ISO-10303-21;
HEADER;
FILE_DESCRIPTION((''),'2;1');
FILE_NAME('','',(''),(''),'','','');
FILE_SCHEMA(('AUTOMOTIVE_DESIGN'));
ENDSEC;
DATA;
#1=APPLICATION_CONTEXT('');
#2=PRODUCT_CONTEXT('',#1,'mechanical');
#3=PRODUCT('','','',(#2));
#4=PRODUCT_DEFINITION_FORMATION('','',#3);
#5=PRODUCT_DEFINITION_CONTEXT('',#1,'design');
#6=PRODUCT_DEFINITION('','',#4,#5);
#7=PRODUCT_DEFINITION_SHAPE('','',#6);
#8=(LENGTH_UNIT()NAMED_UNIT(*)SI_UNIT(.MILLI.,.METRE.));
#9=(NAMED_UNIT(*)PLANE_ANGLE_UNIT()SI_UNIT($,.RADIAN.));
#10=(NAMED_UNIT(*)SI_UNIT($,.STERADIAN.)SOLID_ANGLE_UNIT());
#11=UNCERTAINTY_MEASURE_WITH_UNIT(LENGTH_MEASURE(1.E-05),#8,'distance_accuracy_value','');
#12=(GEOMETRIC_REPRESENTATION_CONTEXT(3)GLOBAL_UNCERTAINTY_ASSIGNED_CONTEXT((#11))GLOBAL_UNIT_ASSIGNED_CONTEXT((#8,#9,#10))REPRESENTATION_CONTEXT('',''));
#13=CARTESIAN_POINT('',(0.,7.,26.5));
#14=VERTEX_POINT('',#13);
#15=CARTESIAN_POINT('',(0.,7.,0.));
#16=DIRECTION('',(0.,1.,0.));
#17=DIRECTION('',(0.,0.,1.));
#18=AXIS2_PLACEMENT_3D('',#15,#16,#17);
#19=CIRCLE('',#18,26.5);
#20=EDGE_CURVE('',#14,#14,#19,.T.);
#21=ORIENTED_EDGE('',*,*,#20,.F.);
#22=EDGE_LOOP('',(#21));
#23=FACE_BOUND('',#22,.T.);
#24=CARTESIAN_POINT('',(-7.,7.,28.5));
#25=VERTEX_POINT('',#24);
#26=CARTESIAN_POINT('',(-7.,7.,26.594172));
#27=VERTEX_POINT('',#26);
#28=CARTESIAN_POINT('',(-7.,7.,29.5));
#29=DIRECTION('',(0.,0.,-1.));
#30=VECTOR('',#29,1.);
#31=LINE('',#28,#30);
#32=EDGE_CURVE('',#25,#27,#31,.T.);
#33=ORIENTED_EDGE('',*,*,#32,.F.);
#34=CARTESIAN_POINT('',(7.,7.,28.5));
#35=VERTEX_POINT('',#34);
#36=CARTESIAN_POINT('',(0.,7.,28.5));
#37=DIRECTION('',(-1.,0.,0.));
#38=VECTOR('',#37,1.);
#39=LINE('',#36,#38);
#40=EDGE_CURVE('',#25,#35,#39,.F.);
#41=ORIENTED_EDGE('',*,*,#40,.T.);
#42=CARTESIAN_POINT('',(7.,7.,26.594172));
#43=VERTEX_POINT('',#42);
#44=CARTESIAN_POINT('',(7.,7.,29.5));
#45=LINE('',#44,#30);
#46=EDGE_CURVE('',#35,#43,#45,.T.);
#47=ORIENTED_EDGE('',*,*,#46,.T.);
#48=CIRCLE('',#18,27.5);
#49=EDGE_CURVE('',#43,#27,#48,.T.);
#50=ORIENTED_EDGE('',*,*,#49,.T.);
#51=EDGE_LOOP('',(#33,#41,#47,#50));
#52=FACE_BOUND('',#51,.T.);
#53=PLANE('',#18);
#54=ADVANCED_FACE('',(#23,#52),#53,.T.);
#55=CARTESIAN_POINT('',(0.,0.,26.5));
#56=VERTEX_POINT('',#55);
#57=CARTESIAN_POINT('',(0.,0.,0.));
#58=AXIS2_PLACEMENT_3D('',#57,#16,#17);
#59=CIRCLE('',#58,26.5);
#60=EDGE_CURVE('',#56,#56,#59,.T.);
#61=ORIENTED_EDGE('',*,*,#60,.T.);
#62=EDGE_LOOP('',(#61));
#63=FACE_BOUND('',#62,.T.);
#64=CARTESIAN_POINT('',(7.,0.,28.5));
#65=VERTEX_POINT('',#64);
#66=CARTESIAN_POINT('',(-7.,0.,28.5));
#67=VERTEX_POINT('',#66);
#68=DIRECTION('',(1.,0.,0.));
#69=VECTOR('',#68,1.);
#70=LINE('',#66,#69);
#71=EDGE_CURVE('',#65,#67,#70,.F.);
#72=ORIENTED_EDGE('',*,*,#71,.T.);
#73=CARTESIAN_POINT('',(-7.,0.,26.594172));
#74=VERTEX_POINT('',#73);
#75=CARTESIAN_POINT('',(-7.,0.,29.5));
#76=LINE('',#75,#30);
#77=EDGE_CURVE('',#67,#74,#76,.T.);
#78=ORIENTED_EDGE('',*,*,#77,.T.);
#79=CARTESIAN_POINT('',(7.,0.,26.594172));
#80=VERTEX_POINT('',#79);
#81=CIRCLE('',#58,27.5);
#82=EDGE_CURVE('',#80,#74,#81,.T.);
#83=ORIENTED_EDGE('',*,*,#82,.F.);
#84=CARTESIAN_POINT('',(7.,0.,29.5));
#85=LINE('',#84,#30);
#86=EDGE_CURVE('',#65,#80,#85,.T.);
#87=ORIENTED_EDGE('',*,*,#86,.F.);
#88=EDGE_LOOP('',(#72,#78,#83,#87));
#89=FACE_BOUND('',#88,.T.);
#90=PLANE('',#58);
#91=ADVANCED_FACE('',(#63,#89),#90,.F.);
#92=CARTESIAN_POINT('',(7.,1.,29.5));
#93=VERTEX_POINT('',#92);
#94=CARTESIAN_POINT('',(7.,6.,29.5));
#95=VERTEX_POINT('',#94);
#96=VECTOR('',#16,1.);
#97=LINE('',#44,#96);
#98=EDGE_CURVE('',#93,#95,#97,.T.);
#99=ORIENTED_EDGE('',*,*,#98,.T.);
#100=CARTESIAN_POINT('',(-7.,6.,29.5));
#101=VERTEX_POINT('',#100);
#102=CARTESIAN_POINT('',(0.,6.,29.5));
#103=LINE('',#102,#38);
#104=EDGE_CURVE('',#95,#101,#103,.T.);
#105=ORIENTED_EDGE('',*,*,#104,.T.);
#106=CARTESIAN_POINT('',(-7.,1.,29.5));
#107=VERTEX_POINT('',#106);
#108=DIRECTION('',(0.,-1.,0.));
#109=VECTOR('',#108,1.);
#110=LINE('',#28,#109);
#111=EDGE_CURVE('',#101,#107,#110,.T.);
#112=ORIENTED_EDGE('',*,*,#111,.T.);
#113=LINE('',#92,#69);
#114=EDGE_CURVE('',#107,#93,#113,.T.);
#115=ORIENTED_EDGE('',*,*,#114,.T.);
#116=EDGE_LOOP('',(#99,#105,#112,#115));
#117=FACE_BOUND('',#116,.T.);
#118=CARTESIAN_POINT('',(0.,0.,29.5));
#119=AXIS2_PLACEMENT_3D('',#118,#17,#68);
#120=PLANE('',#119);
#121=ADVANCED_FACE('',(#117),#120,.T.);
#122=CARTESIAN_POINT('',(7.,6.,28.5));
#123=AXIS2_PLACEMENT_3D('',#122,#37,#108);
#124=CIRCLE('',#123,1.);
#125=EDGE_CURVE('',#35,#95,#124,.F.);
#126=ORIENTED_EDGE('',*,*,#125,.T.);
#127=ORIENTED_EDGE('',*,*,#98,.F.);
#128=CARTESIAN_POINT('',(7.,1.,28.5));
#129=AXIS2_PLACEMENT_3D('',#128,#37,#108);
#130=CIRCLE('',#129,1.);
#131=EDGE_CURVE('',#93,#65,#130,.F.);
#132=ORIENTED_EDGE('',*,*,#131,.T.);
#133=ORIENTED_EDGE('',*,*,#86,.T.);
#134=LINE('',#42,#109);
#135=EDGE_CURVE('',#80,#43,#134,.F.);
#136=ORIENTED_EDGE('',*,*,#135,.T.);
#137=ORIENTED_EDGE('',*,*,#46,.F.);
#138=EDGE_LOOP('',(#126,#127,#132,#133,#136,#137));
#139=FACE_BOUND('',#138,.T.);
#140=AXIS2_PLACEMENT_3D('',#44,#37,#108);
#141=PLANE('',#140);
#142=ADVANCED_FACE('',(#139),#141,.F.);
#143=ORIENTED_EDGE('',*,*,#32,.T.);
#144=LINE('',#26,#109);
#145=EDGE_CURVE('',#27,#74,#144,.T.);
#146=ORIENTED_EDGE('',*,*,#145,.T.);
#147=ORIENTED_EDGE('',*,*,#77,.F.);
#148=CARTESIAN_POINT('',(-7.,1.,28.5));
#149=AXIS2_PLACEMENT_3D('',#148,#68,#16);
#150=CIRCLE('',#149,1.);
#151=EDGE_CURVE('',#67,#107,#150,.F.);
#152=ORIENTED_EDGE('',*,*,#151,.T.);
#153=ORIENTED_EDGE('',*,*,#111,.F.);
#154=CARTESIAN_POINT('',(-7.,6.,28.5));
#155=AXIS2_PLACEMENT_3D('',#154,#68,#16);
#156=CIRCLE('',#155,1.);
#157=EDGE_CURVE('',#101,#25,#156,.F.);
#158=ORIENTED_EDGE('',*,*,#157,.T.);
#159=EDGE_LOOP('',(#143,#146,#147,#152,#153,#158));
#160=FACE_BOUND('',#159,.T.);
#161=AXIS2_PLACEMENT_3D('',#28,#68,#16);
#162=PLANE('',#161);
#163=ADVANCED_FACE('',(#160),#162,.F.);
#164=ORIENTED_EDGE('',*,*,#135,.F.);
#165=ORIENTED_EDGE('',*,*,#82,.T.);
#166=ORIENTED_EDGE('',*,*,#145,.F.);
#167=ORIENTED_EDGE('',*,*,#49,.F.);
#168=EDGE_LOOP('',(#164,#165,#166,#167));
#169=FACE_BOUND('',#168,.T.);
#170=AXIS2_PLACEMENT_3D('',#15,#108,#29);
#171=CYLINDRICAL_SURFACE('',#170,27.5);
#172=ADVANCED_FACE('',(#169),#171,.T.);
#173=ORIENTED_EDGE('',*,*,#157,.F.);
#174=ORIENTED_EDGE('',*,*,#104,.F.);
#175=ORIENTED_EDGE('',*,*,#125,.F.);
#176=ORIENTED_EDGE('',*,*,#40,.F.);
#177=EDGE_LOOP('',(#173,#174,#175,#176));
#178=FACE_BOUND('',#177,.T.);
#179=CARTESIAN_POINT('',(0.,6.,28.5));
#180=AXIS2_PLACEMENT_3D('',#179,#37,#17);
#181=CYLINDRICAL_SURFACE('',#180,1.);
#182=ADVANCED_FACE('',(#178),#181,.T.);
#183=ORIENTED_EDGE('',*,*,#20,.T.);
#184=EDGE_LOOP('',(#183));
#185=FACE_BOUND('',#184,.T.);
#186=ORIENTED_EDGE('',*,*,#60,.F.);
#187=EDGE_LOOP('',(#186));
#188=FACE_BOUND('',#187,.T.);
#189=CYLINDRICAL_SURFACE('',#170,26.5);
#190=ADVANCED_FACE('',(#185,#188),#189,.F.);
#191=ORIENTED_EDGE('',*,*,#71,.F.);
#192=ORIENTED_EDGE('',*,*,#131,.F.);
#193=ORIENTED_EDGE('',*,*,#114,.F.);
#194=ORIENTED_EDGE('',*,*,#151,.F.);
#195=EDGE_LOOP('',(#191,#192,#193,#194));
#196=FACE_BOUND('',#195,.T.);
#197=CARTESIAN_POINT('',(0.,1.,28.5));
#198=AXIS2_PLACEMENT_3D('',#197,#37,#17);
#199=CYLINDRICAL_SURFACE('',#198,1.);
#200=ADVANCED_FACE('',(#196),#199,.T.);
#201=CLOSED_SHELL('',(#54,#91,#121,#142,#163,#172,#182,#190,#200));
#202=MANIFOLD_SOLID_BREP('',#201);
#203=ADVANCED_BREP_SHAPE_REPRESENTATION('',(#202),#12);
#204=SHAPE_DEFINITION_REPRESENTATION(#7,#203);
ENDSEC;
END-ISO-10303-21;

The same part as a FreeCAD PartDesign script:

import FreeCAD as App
import Part
import Sketcher


def edges_at(feature, points):
    """Names of the edges that pass closest to the given points."""
    edges = feature.Shape.Edges
    near = lambda p: min(range(len(edges)), key=lambda i: edges[i].distToShape(Part.Vertex(*p))[0])
    return sorted({f"Edge{near(p) + 1}" for p in points})

doc = App.newDocument("Part")
body = doc.addObject("PartDesign::Body", "Body")

# Sketch on XZ plane
sketch1 = body.newObject("Sketcher::SketchObject", "Sketch")
sketch1.AttachmentSupport = (doc.getObject("XZ_Plane"), [""])
sketch1.MapMode = "FlatFace"
sketch1.addGeometry([
    Part.Circle(App.Vector(0, 0, 0), App.Vector(0, 0, 1), 28),
    Part.Circle(App.Vector(0, 0, 0), App.Vector(0, 0, 1), 26),
], False)
sketch1.addConstraint([
    Sketcher.Constraint("Coincident", 0, 3, -1, 1),
    Sketcher.Constraint("Coincident", 1, 3, -1, 1),
    Sketcher.Constraint("Diameter", 0, 55.0),
    Sketcher.Constraint("Diameter", 1, 53.0),
])
pad1 = body.newObject("PartDesign::Pad", "Pad")
pad1.Profile = sketch1
pad1.Length = 7
pad1.Reversed = True

# Sketch on XY plane
sketch2 = body.newObject("Sketcher::SketchObject", "Sketch001")
sketch2.AttachmentSupport = (doc.getObject("XY_Plane"), [""])
sketch2.MapMode = "FlatFace"
sketch2.AttachmentOffset = App.Placement(App.Vector(0, 0, 26.5), App.Rotation())
sketch2.addGeometry([
    Part.LineSegment(App.Vector(-7, 7, 0), App.Vector(-7, 0, 0)),
    Part.LineSegment(App.Vector(-7, 0, 0), App.Vector(7, 0, 0)),
    Part.LineSegment(App.Vector(7, 0, 0), App.Vector(7, 7, 0)),
    Part.LineSegment(App.Vector(7, 7, 0), App.Vector(-7, 7, 0)),
], False)
sketch2.addConstraint([
    Sketcher.Constraint("Coincident", 0, 2, 1, 1),
    Sketcher.Constraint("Coincident", 1, 2, 2, 1),
    Sketcher.Constraint("Coincident", 2, 2, 3, 1),
    Sketcher.Constraint("Coincident", 3, 2, 0, 1),
    Sketcher.Constraint("Vertical", 0),
    Sketcher.Constraint("Horizontal", 1),
    Sketcher.Constraint("Vertical", 2),
    Sketcher.Constraint("Horizontal", 3),
    Sketcher.Constraint("Symmetric", 0, 2, 1, 2, -1, 1),
    Sketcher.Constraint("DistanceX", 1, 1, 1, 2, 14.0),
    Sketcher.Constraint("DistanceY", 0, 2, 0, 1, 7.0),
])
pad2 = body.newObject("PartDesign::Pad", "Pad001")
pad2.Profile = sketch2
pad2.Length = 3
doc.recompute()

fillet = body.newObject("PartDesign::Fillet", "Fillet")
fillet.Base = (pad2, edges_at(pad2, [(0, 0, 29.5), (0, 7, 29.5)]))
fillet.Radius = 1

doc.recompute()
